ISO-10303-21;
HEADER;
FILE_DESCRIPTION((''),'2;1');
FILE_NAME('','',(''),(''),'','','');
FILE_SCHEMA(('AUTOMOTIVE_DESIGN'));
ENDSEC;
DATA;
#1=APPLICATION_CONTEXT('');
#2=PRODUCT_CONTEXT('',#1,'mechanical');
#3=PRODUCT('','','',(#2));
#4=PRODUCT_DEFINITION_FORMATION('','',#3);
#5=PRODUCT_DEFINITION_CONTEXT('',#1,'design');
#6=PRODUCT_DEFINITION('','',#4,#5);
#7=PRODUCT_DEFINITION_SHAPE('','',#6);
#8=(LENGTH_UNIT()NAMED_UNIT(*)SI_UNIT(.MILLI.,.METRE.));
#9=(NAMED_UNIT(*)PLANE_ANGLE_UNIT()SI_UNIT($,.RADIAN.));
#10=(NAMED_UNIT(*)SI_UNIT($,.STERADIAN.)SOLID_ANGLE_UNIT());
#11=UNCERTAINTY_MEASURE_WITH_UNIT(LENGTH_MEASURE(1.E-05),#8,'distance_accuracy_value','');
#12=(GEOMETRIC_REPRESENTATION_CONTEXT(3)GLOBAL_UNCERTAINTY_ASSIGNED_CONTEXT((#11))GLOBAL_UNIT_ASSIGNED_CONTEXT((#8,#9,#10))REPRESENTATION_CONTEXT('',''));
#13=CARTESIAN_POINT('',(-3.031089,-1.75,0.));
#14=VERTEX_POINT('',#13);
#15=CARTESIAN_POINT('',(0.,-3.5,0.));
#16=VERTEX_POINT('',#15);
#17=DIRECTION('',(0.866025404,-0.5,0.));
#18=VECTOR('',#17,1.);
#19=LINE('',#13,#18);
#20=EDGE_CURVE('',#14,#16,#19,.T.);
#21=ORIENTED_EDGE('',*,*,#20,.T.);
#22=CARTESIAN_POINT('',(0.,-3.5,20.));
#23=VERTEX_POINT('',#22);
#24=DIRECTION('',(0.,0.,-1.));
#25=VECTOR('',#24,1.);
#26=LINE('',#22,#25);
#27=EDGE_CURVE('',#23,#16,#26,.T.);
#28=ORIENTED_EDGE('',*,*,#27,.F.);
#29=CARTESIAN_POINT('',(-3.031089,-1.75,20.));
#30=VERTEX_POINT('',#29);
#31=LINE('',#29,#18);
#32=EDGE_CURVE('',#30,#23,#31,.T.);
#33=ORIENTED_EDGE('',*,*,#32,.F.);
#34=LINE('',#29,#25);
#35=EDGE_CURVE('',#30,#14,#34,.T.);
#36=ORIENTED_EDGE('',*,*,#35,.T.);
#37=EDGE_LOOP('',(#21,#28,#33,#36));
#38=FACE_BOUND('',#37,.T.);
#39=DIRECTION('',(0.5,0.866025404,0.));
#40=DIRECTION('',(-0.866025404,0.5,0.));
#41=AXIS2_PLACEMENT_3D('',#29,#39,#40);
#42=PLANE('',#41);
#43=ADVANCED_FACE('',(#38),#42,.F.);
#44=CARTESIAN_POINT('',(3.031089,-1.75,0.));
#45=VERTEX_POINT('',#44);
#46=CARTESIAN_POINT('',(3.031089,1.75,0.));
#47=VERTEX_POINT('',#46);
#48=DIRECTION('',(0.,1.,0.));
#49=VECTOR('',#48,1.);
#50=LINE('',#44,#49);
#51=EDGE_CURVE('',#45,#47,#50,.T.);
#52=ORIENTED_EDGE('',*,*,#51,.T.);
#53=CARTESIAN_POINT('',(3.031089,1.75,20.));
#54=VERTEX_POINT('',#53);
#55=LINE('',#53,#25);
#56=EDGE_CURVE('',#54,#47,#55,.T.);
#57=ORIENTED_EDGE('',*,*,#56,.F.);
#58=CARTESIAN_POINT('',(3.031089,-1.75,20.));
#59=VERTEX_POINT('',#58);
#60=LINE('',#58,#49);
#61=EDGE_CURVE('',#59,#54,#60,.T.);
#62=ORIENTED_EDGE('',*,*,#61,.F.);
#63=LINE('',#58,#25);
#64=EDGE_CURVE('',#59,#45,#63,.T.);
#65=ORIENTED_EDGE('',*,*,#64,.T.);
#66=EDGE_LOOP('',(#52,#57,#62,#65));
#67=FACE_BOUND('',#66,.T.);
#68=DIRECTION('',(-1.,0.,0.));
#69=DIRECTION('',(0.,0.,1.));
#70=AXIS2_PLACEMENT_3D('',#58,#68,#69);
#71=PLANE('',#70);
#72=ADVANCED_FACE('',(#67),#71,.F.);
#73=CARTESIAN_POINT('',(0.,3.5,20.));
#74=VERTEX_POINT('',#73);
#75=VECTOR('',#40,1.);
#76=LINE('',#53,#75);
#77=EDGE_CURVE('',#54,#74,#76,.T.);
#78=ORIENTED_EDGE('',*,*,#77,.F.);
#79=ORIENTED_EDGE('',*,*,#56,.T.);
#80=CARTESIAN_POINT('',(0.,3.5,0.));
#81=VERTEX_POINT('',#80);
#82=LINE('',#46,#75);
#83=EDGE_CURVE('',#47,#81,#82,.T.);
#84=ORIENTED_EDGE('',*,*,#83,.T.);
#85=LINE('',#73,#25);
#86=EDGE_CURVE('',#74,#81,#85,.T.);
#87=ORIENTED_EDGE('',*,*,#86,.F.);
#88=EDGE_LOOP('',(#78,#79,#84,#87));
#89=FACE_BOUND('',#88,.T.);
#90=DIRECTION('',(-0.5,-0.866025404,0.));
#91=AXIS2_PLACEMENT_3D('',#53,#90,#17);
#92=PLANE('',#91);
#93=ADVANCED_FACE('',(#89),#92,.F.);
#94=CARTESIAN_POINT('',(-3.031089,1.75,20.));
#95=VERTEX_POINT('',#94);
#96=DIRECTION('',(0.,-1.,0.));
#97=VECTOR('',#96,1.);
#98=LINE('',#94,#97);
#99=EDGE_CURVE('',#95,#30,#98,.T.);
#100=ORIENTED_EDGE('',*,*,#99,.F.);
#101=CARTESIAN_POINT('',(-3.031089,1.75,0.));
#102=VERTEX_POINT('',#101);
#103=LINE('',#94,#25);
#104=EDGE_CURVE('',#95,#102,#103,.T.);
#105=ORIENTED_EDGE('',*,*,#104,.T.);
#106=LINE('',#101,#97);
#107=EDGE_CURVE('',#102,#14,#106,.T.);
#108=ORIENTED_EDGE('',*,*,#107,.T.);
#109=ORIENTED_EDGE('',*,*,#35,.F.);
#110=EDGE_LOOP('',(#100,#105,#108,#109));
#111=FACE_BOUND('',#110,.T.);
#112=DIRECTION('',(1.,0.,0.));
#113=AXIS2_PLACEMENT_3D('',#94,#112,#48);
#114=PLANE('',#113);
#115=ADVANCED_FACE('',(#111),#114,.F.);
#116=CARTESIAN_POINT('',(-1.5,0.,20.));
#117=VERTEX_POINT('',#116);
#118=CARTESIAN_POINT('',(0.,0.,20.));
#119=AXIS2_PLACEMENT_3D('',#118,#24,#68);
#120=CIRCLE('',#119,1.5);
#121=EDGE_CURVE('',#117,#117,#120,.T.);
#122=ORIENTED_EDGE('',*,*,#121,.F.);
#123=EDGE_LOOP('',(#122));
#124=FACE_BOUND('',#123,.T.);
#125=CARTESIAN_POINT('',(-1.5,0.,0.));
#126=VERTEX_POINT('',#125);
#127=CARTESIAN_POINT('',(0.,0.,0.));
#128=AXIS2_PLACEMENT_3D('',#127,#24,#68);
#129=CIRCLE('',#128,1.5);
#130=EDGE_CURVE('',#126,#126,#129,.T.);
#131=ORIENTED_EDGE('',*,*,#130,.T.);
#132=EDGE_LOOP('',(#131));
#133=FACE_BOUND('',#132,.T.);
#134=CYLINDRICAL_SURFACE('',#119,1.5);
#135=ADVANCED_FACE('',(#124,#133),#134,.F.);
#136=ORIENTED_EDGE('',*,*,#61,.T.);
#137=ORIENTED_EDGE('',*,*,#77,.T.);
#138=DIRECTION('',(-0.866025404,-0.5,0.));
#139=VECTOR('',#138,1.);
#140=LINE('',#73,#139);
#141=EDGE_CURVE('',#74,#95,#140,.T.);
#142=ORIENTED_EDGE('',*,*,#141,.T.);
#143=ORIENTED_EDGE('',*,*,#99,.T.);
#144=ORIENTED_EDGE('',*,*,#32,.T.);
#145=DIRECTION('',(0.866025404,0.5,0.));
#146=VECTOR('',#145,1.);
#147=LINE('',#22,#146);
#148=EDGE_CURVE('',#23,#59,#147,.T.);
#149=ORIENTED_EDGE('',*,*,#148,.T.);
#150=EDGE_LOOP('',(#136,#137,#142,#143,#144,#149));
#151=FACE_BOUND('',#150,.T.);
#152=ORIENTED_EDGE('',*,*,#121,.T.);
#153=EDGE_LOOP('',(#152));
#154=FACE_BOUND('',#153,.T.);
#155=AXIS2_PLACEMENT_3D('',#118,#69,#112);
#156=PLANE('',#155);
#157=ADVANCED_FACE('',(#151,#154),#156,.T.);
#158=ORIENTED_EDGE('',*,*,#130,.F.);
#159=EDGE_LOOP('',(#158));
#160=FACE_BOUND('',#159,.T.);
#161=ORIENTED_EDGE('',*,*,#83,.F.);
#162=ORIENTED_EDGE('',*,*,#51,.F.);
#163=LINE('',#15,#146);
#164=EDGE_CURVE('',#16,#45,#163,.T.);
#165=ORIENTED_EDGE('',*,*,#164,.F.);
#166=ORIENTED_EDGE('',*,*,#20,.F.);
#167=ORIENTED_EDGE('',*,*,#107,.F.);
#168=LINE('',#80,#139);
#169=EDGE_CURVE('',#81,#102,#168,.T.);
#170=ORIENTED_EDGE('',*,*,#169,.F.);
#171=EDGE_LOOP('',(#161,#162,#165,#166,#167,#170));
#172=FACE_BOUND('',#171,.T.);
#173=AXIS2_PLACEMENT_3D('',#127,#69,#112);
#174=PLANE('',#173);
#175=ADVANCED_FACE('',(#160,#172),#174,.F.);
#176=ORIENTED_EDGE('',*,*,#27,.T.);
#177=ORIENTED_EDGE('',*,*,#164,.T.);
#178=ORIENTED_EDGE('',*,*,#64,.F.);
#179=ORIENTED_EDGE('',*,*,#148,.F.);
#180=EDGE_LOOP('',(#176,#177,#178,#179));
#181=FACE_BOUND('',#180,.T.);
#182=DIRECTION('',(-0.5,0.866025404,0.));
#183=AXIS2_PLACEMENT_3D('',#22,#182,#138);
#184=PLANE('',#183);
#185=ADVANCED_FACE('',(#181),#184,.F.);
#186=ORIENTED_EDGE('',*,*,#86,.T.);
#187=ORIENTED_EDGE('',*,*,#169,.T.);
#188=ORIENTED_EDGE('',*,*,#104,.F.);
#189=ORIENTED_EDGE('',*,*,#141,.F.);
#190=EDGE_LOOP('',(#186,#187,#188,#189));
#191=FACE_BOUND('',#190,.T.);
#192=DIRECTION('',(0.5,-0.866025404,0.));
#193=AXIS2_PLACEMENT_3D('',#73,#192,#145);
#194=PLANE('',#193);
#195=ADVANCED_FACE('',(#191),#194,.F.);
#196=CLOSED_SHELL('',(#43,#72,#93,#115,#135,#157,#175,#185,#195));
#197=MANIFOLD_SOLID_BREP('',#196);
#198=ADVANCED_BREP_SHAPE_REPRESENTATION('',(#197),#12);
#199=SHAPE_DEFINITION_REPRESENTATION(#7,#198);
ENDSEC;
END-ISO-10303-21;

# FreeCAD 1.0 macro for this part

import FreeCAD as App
import Part
import Sketcher

V = App.Vector
Q = App.Units.Quantity

doc = App.newDocument("Part")
body = doc.addObject("PartDesign::Body", "Body")

sketch1 = body.newObject("Sketcher::SketchObject", "Sketch")
sketch1.AttachmentSupport = (doc.getObject("XY_Plane"), [""])
sketch1.MapMode = "FlatFace"
sketch1.addGeometry([
    Part.LineSegment(V(0, -3.5, 0), V(3, -1.8, 0)),
    Part.LineSegment(V(3, -1.8, 0), V(3, 1.8, 0)),
    Part.LineSegment(V(3, 1.8, 0), V(0, 3.5, 0)),
    Part.LineSegment(V(0, 3.5, 0), V(-3, 1.8, 0)),
    Part.LineSegment(V(-3, 1.8, 0), V(-3, -1.8, 0)),
    Part.LineSegment(V(-3, -1.8, 0), V(0, -3.5, 0)),
], False)
sketch1.addConstraint([
    Sketcher.Constraint("Coincident", 0, 2, 1, 1),
    Sketcher.Constraint("Coincident", 1, 2, 2, 1),
    Sketcher.Constraint("Coincident", 2, 2, 3, 1),
    Sketcher.Constraint("Coincident", 3, 2, 4, 1),
    Sketcher.Constraint("Coincident", 4, 2, 5, 1),
    Sketcher.Constraint("Coincident", 5, 2, 0, 1),
    Sketcher.Constraint("Vertical", 1),
    Sketcher.Constraint("Vertical", 4),
    Sketcher.Constraint("Symmetric", 0, 2, 3, 2, -1, 1),
    Sketcher.Constraint("Symmetric", 2, 2, 5, 2, -1, 1),
    Sketcher.Constraint("PointOnObject", 2, 2, -2),
    Sketcher.Constraint("Parallel", 2, 5),
    Sketcher.Constraint("Horizontal", 1, 2, 3, 2),
    Sketcher.Constraint("Angle", 0, Q("30 deg")),
    Sketcher.Constraint("DistanceY", 1, 1, 1, 2, 3.5),
    Sketcher.Constraint("DistanceY", 5, 2, 2, 2, 7.0),
])
pad1 = body.newObject("PartDesign::Pad", "Pad")
pad1.Profile = sketch1
pad1.Length = 20

sketch2 = body.newObject("Sketcher::SketchObject", "Sketch001")
sketch2.AttachmentSupport = (doc.getObject("XY_Plane"), [""])
sketch2.MapMode = "FlatFace"
sketch2.addGeometry(Part.Circle(V(0, 0, 0), V(0, 0, 1), 1.5), False)
sketch2.addConstraint([
    Sketcher.Constraint("Coincident", 0, 3, -1, 1),
    Sketcher.Constraint("Diameter", 0, 3.0),
])
pocket1 = body.newObject("PartDesign::Pocket", "Pocket")
pocket1.Profile = sketch2
pocket1.Length = 20
pocket1.Reversed = True

doc.recompute()
